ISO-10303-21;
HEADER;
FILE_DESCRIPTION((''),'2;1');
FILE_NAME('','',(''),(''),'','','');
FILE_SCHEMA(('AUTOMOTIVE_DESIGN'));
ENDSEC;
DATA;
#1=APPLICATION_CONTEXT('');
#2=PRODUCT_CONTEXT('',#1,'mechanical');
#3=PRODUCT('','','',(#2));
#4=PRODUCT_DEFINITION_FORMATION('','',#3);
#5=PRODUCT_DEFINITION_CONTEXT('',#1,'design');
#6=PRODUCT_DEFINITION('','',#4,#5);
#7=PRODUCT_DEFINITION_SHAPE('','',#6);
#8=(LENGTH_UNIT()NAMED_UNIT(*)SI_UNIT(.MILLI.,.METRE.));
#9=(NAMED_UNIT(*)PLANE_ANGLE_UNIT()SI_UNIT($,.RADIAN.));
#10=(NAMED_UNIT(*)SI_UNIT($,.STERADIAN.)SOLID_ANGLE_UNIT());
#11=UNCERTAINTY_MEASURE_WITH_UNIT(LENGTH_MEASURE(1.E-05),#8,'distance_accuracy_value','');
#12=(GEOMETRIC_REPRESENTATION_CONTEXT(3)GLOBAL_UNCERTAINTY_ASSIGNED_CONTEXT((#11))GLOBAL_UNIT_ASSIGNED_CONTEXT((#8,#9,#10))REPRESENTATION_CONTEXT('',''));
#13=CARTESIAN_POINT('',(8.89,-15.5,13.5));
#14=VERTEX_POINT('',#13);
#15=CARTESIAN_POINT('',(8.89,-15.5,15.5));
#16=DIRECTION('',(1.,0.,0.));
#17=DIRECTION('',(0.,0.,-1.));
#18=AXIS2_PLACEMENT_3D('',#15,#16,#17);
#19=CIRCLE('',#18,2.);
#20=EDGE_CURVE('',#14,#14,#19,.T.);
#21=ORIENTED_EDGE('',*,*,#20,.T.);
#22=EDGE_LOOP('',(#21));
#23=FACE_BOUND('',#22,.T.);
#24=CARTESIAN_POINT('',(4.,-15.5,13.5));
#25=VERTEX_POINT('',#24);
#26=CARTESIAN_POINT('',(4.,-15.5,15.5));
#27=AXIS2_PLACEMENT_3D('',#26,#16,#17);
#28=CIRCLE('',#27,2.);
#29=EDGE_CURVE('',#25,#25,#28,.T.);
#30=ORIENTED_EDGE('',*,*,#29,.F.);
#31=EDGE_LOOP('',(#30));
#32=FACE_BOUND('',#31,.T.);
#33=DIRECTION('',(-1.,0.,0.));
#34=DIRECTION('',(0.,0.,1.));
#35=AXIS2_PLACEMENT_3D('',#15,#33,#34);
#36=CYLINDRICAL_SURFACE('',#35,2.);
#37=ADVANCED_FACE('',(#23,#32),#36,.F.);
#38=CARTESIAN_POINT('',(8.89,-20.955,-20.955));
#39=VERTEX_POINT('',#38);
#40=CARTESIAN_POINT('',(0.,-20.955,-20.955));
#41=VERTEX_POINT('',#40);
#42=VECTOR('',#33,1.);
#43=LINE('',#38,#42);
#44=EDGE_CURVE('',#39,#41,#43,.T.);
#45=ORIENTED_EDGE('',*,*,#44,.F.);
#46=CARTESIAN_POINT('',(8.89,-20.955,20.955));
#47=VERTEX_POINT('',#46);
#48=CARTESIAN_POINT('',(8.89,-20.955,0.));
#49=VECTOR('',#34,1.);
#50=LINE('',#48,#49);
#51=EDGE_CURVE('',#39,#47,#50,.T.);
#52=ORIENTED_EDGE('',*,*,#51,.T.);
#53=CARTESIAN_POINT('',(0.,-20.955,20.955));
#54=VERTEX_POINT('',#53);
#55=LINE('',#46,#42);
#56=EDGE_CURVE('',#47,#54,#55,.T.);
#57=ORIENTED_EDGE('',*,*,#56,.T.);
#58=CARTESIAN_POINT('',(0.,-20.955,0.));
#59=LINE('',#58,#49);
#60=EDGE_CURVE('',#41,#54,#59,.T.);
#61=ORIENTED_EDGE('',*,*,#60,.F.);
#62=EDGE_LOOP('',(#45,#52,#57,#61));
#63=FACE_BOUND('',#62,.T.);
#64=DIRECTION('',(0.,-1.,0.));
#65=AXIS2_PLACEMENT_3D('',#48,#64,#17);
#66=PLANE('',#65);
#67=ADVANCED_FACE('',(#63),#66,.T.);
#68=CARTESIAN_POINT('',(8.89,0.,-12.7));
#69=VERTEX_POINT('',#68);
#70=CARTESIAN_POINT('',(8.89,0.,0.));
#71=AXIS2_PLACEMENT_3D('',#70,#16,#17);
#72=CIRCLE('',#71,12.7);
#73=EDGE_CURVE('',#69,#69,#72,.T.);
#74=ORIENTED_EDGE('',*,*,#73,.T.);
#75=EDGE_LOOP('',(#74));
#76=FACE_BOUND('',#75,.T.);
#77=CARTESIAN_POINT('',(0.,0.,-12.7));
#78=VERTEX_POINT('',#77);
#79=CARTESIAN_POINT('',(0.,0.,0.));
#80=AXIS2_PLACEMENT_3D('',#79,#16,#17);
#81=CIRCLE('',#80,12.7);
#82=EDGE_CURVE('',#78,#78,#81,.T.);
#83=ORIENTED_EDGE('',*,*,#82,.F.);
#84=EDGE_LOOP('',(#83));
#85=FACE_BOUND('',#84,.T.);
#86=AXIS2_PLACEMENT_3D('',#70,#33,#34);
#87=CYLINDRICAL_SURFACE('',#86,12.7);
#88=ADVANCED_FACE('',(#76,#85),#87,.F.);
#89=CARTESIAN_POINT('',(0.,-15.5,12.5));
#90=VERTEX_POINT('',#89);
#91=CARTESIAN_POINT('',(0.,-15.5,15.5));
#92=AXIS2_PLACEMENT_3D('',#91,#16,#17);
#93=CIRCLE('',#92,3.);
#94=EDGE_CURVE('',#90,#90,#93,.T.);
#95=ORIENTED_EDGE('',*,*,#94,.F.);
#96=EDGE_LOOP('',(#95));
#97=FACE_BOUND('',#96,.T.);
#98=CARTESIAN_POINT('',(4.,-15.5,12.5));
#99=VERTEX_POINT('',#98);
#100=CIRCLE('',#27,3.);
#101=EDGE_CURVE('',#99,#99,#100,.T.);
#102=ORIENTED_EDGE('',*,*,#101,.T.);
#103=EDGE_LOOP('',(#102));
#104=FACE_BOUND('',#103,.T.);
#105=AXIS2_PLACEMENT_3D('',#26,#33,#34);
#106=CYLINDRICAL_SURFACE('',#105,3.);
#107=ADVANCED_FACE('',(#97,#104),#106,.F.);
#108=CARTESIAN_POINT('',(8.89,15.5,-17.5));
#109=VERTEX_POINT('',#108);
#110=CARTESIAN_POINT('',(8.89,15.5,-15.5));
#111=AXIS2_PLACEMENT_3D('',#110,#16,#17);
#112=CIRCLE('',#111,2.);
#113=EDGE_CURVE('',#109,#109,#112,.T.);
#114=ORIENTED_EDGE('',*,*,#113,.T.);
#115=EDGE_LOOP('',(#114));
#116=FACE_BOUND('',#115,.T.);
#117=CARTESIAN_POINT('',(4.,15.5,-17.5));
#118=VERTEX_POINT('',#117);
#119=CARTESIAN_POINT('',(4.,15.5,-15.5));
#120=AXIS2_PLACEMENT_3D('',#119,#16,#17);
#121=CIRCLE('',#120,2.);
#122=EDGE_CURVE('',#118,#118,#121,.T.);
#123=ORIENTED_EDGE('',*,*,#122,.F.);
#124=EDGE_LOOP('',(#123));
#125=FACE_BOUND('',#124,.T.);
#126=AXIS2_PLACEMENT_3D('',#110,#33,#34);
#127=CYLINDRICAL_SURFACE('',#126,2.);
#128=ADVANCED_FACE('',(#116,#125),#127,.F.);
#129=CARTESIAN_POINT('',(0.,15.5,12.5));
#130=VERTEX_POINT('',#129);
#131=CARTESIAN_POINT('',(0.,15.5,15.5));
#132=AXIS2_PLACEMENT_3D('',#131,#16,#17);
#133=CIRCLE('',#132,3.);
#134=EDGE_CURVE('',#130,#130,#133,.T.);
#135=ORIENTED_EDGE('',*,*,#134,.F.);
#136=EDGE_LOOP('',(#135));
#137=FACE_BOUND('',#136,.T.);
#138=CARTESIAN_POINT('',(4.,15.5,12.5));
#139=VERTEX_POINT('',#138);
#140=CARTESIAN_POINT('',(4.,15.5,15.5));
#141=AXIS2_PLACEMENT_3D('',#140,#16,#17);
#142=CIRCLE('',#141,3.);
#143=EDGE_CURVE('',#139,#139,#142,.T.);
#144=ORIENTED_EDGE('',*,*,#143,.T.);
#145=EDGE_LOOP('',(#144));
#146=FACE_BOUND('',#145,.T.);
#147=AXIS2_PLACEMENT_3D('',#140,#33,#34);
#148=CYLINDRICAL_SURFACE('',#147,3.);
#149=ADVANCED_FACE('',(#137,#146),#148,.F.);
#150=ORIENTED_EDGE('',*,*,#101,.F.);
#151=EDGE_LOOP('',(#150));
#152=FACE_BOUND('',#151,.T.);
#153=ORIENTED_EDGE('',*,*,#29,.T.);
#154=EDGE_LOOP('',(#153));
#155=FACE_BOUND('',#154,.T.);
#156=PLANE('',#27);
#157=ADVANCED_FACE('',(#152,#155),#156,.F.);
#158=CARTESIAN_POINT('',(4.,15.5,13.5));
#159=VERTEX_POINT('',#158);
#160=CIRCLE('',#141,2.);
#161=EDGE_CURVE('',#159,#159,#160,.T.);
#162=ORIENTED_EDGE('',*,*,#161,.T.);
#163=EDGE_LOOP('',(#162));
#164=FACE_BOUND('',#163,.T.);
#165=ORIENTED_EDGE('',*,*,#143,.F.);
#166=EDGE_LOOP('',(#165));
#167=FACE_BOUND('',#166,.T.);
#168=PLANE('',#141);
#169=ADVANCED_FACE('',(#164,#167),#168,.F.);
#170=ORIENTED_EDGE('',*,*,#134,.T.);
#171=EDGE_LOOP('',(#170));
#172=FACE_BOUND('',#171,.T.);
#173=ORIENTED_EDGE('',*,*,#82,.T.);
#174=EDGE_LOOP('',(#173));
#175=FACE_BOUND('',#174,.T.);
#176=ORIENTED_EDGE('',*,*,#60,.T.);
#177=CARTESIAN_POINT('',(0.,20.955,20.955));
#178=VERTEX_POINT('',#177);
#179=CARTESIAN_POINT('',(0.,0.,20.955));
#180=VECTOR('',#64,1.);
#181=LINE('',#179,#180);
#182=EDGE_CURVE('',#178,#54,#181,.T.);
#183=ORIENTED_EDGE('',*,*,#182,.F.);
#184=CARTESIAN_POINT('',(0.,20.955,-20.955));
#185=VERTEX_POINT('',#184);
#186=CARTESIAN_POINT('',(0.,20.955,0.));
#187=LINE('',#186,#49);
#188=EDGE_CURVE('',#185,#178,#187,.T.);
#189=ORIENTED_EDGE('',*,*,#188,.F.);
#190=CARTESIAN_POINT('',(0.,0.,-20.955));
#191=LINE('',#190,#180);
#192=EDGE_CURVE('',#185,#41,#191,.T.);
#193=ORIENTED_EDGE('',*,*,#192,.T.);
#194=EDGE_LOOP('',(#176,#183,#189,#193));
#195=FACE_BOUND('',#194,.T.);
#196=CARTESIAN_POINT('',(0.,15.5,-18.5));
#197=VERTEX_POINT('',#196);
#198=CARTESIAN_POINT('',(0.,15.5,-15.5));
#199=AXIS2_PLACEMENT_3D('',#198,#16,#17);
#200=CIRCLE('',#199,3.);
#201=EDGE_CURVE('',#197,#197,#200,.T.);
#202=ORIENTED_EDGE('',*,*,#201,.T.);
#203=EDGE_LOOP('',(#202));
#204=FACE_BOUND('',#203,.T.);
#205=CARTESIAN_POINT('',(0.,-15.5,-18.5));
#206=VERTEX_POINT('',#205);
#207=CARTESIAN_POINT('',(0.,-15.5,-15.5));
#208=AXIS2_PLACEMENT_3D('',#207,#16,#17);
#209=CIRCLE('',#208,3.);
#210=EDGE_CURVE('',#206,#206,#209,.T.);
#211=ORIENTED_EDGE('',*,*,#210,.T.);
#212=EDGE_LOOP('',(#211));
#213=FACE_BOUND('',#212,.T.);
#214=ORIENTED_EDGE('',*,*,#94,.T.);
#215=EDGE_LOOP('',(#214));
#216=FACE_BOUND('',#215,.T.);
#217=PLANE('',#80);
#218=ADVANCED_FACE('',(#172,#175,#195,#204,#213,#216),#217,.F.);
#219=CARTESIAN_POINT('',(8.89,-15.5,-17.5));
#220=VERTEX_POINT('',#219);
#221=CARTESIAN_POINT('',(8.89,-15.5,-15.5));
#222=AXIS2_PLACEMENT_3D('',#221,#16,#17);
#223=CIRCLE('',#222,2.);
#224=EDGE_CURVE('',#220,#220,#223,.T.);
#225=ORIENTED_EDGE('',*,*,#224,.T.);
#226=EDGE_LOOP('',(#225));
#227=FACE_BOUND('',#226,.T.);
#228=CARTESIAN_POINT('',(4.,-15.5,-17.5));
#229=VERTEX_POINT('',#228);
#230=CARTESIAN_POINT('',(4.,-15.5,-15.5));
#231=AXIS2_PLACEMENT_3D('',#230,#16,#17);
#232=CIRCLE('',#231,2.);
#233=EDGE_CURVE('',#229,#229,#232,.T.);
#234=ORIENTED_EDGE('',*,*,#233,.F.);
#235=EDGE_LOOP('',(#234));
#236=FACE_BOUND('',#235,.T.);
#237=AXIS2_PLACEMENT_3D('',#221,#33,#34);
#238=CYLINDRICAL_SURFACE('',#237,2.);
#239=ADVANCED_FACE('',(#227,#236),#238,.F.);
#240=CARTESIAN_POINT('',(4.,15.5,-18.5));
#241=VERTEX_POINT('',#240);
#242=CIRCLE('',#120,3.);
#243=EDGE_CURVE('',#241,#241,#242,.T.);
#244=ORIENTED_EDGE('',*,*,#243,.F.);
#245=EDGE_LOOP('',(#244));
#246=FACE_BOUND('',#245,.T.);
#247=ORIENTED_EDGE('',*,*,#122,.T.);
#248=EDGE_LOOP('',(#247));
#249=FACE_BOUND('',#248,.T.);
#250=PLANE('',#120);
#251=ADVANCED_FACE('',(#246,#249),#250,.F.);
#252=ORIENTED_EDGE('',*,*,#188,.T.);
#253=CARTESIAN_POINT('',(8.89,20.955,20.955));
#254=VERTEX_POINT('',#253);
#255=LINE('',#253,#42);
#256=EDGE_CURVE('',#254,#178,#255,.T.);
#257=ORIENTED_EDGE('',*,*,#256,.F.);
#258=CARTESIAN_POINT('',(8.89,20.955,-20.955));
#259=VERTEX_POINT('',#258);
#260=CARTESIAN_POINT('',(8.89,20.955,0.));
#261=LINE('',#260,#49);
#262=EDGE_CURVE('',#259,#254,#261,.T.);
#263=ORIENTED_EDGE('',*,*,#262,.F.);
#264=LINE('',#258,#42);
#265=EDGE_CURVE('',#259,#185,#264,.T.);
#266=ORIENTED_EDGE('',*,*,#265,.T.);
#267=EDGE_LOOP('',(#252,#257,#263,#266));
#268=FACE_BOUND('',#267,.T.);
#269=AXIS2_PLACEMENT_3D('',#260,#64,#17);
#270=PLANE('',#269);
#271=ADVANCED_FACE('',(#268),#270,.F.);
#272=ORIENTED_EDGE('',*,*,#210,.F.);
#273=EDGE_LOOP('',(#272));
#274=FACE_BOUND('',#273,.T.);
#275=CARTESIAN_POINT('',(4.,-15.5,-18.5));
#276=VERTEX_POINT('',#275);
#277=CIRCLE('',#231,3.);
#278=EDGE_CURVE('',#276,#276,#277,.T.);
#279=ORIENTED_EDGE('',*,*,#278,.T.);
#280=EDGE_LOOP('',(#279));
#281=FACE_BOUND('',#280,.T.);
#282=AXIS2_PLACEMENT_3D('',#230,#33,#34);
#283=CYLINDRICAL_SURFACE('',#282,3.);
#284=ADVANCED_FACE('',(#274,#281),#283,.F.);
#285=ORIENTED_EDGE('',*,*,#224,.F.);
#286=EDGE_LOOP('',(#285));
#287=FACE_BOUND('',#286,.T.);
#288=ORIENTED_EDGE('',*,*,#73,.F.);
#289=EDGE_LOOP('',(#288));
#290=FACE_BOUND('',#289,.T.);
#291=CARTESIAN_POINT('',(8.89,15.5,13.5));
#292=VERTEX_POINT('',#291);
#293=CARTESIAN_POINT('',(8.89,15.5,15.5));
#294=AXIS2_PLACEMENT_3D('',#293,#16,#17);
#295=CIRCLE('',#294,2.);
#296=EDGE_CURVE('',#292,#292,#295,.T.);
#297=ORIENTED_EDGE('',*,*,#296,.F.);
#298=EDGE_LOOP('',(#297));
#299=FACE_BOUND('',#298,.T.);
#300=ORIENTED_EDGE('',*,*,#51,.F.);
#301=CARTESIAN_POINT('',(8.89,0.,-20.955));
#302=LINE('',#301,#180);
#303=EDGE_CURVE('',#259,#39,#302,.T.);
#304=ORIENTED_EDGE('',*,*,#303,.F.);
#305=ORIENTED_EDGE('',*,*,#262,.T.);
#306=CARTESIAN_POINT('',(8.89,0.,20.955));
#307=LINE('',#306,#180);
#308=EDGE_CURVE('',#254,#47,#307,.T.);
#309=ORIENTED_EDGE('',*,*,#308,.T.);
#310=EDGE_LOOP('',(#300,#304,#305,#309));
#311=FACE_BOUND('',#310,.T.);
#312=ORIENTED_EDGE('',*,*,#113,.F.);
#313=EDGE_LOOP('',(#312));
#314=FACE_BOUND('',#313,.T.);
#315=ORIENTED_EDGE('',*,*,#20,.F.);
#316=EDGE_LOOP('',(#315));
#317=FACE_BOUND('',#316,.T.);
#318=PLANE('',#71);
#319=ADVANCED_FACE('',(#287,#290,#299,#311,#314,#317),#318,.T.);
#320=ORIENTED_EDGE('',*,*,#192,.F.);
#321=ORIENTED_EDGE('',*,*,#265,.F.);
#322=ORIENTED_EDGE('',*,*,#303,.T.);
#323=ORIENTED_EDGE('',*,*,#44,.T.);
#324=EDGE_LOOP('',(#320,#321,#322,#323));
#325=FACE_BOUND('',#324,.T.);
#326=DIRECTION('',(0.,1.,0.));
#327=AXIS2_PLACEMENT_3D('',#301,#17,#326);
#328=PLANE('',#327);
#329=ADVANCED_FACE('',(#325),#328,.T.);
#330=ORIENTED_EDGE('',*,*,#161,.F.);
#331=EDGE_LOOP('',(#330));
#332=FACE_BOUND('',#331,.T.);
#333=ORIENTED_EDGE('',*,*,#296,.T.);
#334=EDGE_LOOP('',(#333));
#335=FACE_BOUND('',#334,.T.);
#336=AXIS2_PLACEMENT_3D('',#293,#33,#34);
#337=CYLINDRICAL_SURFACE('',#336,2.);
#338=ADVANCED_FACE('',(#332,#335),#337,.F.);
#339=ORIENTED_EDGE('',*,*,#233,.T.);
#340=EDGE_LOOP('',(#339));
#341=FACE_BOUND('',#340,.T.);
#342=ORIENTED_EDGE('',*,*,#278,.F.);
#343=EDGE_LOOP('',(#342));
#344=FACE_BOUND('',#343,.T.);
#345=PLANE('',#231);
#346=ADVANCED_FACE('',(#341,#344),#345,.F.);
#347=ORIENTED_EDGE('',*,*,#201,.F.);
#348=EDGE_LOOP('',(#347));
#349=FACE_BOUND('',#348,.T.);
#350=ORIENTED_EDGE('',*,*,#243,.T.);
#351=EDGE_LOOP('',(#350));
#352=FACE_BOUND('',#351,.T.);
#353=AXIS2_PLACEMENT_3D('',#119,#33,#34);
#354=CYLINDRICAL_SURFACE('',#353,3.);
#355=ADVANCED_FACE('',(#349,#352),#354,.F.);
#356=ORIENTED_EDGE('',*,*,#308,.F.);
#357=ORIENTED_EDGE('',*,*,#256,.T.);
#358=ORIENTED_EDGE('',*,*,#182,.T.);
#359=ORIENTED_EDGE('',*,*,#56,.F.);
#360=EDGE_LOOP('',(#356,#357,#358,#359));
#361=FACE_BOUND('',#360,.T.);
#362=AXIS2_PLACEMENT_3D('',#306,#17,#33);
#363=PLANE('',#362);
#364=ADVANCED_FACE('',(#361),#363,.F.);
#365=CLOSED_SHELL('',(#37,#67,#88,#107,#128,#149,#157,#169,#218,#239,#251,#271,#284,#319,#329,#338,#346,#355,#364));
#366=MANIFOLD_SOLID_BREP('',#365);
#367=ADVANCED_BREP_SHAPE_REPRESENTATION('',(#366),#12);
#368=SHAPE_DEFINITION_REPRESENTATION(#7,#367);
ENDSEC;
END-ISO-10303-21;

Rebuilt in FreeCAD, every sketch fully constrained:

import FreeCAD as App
import Part
import Sketcher

V = App.Vector
Q = App.Units.Quantity


def add_polygon(sketch, points):
    """Adds a closed chain of lines whose ends are joined by coincident constraints."""
    first, n = sketch.GeometryCount, len(points)
    for a, b in zip(points, points[1:] + points[:1]):
        sketch.addGeometry(Part.LineSegment(App.Vector(*a, 0), App.Vector(*b, 0)), False)
    for i in range(n):
        sketch.addConstraint(Sketcher.Constraint("Coincident", first + i, 2, first + (i + 1) % n, 1))

doc = App.newDocument("Part")
body = doc.addObject("PartDesign::Body", "Body")

sketch1 = body.newObject("Sketcher::SketchObject", "Sketch")
sketch1.AttachmentSupport = (doc.getObject("YZ_Plane"), [""])
sketch1.MapMode = "FlatFace"
add_polygon(sketch1, [(21, 21), (-21, 21), (-21, -21), (21, -21)])
sketch1.addGeometry(Part.Circle(V(-15.5, 15.5, 0), V(0, 0, 1), 2), False)
sketch1.addGeometry(Part.Circle(V(-15.5, -15.5, 0), V(0, 0, 1), 2), False)
sketch1.addGeometry(Part.Circle(V(15.5, 15.5, 0), V(0, 0, 1), 2), False)
sketch1.addGeometry(Part.Circle(V(0, 0, 0), V(0, 0, 1), 12.7), False)
sketch1.addGeometry(Part.Circle(V(15.5, -15.5, 0), V(0, 0, 1), 2), False)
sketch1.addConstraint([
    Sketcher.Constraint("Horizontal", 0),
    Sketcher.Constraint("Vertical", 1),
    Sketcher.Constraint("Horizontal", 2),
    Sketcher.Constraint("Vertical", 3),
    Sketcher.Constraint("Coincident", 7, 3, -1, 1),
    Sketcher.Constraint("Equal", 4, 5),
    Sketcher.Constraint("Equal", 5, 6),
    Sketcher.Constraint("Equal", 6, 8),
    Sketcher.Constraint("Symmetric", 5, 3, 6, 3, -1, 1),
    Sketcher.Constraint("Symmetric", 4, 3, 8, 3, -1, 1),
    Sketcher.Constraint("Symmetric", 0, 2, 2, 2, -1, 1),
    Sketcher.Constraint("Symmetric", 4, 3, 6, 3, -2),
    Sketcher.Constraint("Equal", 2, 1),
    Sketcher.Constraint("Diameter", 7, Q("1 in")),
    Sketcher.Constraint("DistanceX", 0, 2, 0, 1, Q("1.65 in")),
    Sketcher.Constraint("Diameter", 4, Q("4 mm")),
    Sketcher.Constraint("DistanceX", 4, 3, -1, 1, Q("15.5 mm")),
    Sketcher.Constraint("DistanceY", -1, 1, 4, 3, Q("15.5 mm")),
])
pad1 = body.newObject("PartDesign::Pad", "Pad")
pad1.Profile = sketch1
pad1.Length = Q("0.35 in")

sketch2 = body.newObject("Sketcher::SketchObject", "Sketch001")
sketch2.AttachmentSupport = (doc.getObject("YZ_Plane"), [""])
sketch2.MapMode = "FlatFace"
sketch2.addGeometry([
    Part.Circle(V(15.5, -15.5, 0), V(0, 0, 1), 3),
    Part.Circle(V(15.5, 15.5, 0), V(0, 0, 1), 3),
    Part.Circle(V(-15.5, 15.5, 0), V(0, 0, 1), 3),
    Part.Circle(V(-15.5, -15.5, 0), V(0, 0, 1), 3),
], False)
sketch2.addConstraint([
    Sketcher.Constraint("Equal", 0, 1),
    Sketcher.Constraint("Equal", 1, 2),
    Sketcher.Constraint("Equal", 2, 3),
    Sketcher.Constraint("Symmetric", 0, 3, 2, 3, -1, 1),
    Sketcher.Constraint("Symmetric", 1, 3, 3, 3, -1, 1),
    Sketcher.Constraint("Symmetric", 1, 3, 2, 3, -2),
    Sketcher.Constraint("Diameter", 0, Q("6 mm")),
    Sketcher.Constraint("DistanceX", -1, 1, 0, 3, Q("15.5 mm")),
    Sketcher.Constraint("DistanceY", 0, 3, -1, 1, Q("15.5 mm")),
])
pocket1 = body.newObject("PartDesign::Pocket", "Pocket")
pocket1.Profile = sketch2
pocket1.Length = 4
pocket1.Reversed = True

doc.recompute()
